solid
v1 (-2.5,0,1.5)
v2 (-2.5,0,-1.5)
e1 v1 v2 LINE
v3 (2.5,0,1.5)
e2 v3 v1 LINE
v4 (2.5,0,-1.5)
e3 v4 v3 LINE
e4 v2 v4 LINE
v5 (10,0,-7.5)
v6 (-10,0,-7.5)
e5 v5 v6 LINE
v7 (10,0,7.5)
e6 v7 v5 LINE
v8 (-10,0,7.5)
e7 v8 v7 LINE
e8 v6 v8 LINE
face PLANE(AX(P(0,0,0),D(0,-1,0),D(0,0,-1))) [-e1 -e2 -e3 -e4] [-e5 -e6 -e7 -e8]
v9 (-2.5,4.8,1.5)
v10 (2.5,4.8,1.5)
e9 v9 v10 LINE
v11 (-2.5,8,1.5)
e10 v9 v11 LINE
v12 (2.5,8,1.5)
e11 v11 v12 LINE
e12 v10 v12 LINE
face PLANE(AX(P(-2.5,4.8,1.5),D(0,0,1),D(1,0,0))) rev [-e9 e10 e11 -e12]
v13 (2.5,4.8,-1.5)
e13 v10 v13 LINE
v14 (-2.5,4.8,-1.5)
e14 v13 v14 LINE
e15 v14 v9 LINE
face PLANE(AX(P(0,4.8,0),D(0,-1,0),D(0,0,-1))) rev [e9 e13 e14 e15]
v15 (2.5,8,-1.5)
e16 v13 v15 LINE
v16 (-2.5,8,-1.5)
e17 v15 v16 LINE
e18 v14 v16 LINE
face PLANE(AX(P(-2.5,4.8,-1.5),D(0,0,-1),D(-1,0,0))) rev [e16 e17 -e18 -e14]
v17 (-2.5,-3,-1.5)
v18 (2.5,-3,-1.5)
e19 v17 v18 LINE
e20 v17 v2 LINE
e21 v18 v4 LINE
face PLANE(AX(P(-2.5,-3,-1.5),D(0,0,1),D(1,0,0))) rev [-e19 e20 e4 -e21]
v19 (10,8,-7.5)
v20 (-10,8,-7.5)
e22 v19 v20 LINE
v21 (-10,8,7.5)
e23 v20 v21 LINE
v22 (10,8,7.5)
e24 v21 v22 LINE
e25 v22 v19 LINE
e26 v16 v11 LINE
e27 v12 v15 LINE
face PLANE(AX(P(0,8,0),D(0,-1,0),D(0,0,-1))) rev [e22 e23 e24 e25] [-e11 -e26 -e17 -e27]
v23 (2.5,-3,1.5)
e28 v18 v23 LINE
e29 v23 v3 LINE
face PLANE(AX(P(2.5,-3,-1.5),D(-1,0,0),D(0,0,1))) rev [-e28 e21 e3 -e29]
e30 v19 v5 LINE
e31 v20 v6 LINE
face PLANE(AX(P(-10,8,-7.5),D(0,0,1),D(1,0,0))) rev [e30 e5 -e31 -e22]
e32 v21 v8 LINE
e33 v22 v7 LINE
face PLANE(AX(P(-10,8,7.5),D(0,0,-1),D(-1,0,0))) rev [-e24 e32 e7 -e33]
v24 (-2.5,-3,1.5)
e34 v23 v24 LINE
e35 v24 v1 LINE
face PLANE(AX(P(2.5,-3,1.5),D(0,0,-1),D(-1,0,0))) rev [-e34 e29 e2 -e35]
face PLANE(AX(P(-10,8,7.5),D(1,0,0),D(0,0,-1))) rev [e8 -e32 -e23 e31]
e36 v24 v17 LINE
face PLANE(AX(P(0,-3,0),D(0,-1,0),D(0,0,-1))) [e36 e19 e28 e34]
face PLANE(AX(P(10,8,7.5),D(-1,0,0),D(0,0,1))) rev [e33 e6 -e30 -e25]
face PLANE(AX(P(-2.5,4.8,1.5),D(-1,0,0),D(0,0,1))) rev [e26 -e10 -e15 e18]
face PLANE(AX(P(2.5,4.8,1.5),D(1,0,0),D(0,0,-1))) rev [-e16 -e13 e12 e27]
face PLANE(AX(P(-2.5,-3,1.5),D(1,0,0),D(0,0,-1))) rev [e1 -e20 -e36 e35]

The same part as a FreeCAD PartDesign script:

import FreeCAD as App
import Part
import Sketcher
from FreeCAD import Vector
Q = App.Units.Quantity


def add_polygon(sketch, points):
    """Adds a closed chain of lines whose ends are joined by coincident constraints."""
    first, n = sketch.GeometryCount, len(points)
    for a, b in zip(points, points[1:] + points[:1]):
        sketch.addGeometry(Part.LineSegment(App.Vector(*a, 0), App.Vector(*b, 0)), False)
    for i in range(n):
        sketch.addConstraint(Sketcher.Constraint("Coincident", first + i, 2, first + (i + 1) % n, 1))

doc = App.newDocument("Part")
body = doc.addObject("PartDesign::Body", "Body")

# Sketch on XZ plane
sketch1 = body.newObject("Sketcher::SketchObject", "Sketch")
sketch1.AttachmentSupport = (doc.getObject("XZ_Plane"), [""])
sketch1.MapMode = "FlatFace"
add_polygon(sketch1, [(-10, -8), (-10, 8), (10, 8), (10, -8)])  # lines 0-3
sketch1.addConstraint(Sketcher.Constraint("Vertical", 0))
sketch1.addConstraint(Sketcher.Constraint("Horizontal", 1))
sketch1.addConstraint(Sketcher.Constraint("Vertical", 2))
sketch1.addConstraint(Sketcher.Constraint("Horizontal", 3))
sketch1.addConstraint(Sketcher.Constraint("Symmetric", 0, 2, 2, 2, -1, 1))
sketch1.addConstraint(Sketcher.Constraint("DistanceX", 1, 1, 1, 2, Q("20 mm")))
sketch1.addConstraint(Sketcher.Constraint("DistanceY", 0, 1, 0, 2, Q("15 mm")))
pad1 = body.newObject("PartDesign::Pad", "Pad")
pad1.Profile = sketch1
pad1.Length = 8
pad1.Reversed = True

# Sketch on XZ plane
sketch2 = body.newObject("Sketcher::SketchObject", "Sketch001")
sketch2.AttachmentSupport = (doc.getObject("XZ_Plane"), [""])
sketch2.MapMode = "FlatFace"
sketch2.AttachmentOffset = App.Placement(Vector(0, 0, -8), App.Rotation())
add_polygon(sketch2, [(-2.5, -1.5), (-2.5, 1.5), (2.5, 1.5), (2.5, -1.5)])  # lines 0-3
sketch2.addConstraint(Sketcher.Constraint("Vertical", 0))
sketch2.addConstraint(Sketcher.Constraint("Horizontal", 1))
sketch2.addConstraint(Sketcher.Constraint("Vertical", 2))
sketch2.addConstraint(Sketcher.Constraint("Horizontal", 3))
sketch2.addConstraint(Sketcher.Constraint("Symmetric", 0, 2, 2, 2, -1, 1))
sketch2.addConstraint(Sketcher.Constraint("DistanceX", 1, 1, 1, 2, Q("5 mm")))
sketch2.addConstraint(Sketcher.Constraint("DistanceY", 0, 1, 0, 2, Q("3 mm")))
pocket1 = body.newObject("PartDesign::Pocket", "Pocket")
pocket1.Profile = sketch2
pocket1.Length = 3.2
pocket1.Reversed = True

# Sketch on XZ plane
sketch3 = body.newObject("Sketcher::SketchObject", "Sketch002")
sketch3.AttachmentSupport = (doc.getObject("XZ_Plane"), [""])
sketch3.MapMode = "FlatFace"
add_polygon(sketch3, [(-2.5, 1.5), (-2.5, -1.5), (2.5, -1.5), (2.5, 1.5)])  # lines 0-3
sketch3.addConstraint(Sketcher.Constraint("Vertical", 0))
sketch3.addConstraint(Sketcher.Constraint("Horizontal", 1))
sketch3.addConstraint(Sketcher.Constraint("Vertical", 2))
sketch3.addConstraint(Sketcher.Constraint("Horizontal", 3))
sketch3.addConstraint(Sketcher.Constraint("Symmetric", 0, 2, 2, 2, -1, 1))
sketch3.addConstraint(Sketcher.Constraint("DistanceX", 1, 1, 1, 2, Q("5 mm")))
sketch3.addConstraint(Sketcher.Constraint("DistanceY", 0, 2, 0, 1, Q("3 mm")))
pad2 = body.newObject("PartDesign::Pad", "Pad001")
pad2.Profile = sketch3
pad2.Length = 3

doc.recompute()
